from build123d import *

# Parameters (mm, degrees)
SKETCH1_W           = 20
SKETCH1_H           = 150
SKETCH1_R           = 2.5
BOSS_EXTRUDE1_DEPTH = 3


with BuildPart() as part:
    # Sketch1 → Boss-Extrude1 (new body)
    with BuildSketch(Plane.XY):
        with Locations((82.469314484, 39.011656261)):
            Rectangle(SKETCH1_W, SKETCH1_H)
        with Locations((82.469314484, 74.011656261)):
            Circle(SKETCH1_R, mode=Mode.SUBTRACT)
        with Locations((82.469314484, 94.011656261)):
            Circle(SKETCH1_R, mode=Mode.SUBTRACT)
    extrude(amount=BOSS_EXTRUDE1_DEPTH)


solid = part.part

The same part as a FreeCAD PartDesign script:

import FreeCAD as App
import Part
import Sketcher

V = App.Vector

doc = App.newDocument("Part")
body = doc.addObject("PartDesign::Body", "Body")

sketch1 = body.newObject("Sketcher::SketchObject", "Sketch")
sketch1.AttachmentSupport = (doc.getObject("XY_Plane"), [""])
sketch1.MapMode = "FlatFace"
sketch1.addGeometry([
    Part.LineSegment(V(72.469314, 114.011656, 0), V(72.469314, -35.988344, 0)),
    Part.LineSegment(V(72.469314, -35.988344, 0), V(92.469314, -35.988344, 0)),
    Part.LineSegment(V(92.469314, -35.988344, 0), V(92.469314, 114.011656, 0)),
    Part.LineSegment(V(92.469314, 114.011656, 0), V(72.469314, 114.011656, 0)),
    Part.Circle(V(82.469314, 74.011656, 0), V(0, 0, 1), 2.5),
    Part.Circle(V(82.469314, 94.011656, 0), V(0, 0, 1), 2.5),
], False)
sketch1.addConstraint([
    Sketcher.Constraint("Coincident", 0, 2, 1, 1),
    Sketcher.Constraint("Coincident", 1, 2, 2, 1),
    Sketcher.Constraint("Coincident", 2, 2, 3, 1),
    Sketcher.Constraint("Coincident", 3, 2, 0, 1),
    Sketcher.Constraint("Vertical", 0),
    Sketcher.Constraint("Horizontal", 1),
    Sketcher.Constraint("Vertical", 2),
    Sketcher.Constraint("Horizontal", 3),
    Sketcher.Constraint("Equal", 4, 5),
    Sketcher.Constraint("Vertical", 4, 3, 5, 3),
    Sketcher.Constraint("Diameter", 4, 5.0),
    Sketcher.Constraint("DistanceX", 1, 1, 1, 2, 20.0),
    Sketcher.Constraint("DistanceY", 0, 2, 0, 1, 150.0),
    Sketcher.Constraint("DistanceY", 4, 3, 5, 3, 20.0),
    Sketcher.Constraint("DistanceX", 0, 2, 4, 3, 10.0),
    Sketcher.Constraint("DistanceY", 0, 2, 4, 3, 110.0),
    Sketcher.Constraint("DistanceX", -1, 1, 4, 3, 82.469314),
    Sketcher.Constraint("DistanceY", -1, 1, 4, 3, 74.011656),
])
pad1 = body.newObject("PartDesign::Pad", "Pad")
pad1.Profile = sketch1
pad1.Length = 3

doc.recompute()
